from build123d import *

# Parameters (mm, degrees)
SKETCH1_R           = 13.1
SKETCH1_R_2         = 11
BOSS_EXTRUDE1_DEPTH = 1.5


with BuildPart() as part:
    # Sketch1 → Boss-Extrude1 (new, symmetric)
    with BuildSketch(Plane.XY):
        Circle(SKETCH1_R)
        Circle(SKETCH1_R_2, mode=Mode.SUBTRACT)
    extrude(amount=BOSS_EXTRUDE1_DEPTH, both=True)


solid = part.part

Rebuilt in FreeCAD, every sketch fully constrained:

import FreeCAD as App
import Part
import Sketcher

V = App.Vector

doc = App.newDocument("Part")
body = doc.addObject("PartDesign::Body", "Body")

# Sketch on XY plane
sketch1 = doc.addObject("Sketcher::SketchObject", "Sketch")
body.addObject(sketch1)
sketch1.AttachmentSupport = (doc.XY_Plane, [""])
sketch1.MapMode = "FlatFace"
sketch1.addGeometry(Part.Circle(V(0, 0, 0), V(0, 0, 1), 13.1), False)
sketch1.addGeometry(Part.Circle(V(0, 0, 0), V(0, 0, 1), 11), False)
sketch1.addConstraint(Sketcher.Constraint("Coincident", 0, 3, -1, 1))
sketch1.addConstraint(Sketcher.Constraint("Coincident", 1, 3, -1, 1))
sketch1.addConstraint(Sketcher.Constraint("Diameter", 1, 22.0))
sketch1.addConstraint(Sketcher.Constraint("Diameter", 0, 26.2))
pad1 = doc.addObject("PartDesign::Pad", "Pad")
body.addObject(pad1)
pad1.Profile = sketch1
pad1.Length = 3
pad1.Midplane = True

doc.recompute()
